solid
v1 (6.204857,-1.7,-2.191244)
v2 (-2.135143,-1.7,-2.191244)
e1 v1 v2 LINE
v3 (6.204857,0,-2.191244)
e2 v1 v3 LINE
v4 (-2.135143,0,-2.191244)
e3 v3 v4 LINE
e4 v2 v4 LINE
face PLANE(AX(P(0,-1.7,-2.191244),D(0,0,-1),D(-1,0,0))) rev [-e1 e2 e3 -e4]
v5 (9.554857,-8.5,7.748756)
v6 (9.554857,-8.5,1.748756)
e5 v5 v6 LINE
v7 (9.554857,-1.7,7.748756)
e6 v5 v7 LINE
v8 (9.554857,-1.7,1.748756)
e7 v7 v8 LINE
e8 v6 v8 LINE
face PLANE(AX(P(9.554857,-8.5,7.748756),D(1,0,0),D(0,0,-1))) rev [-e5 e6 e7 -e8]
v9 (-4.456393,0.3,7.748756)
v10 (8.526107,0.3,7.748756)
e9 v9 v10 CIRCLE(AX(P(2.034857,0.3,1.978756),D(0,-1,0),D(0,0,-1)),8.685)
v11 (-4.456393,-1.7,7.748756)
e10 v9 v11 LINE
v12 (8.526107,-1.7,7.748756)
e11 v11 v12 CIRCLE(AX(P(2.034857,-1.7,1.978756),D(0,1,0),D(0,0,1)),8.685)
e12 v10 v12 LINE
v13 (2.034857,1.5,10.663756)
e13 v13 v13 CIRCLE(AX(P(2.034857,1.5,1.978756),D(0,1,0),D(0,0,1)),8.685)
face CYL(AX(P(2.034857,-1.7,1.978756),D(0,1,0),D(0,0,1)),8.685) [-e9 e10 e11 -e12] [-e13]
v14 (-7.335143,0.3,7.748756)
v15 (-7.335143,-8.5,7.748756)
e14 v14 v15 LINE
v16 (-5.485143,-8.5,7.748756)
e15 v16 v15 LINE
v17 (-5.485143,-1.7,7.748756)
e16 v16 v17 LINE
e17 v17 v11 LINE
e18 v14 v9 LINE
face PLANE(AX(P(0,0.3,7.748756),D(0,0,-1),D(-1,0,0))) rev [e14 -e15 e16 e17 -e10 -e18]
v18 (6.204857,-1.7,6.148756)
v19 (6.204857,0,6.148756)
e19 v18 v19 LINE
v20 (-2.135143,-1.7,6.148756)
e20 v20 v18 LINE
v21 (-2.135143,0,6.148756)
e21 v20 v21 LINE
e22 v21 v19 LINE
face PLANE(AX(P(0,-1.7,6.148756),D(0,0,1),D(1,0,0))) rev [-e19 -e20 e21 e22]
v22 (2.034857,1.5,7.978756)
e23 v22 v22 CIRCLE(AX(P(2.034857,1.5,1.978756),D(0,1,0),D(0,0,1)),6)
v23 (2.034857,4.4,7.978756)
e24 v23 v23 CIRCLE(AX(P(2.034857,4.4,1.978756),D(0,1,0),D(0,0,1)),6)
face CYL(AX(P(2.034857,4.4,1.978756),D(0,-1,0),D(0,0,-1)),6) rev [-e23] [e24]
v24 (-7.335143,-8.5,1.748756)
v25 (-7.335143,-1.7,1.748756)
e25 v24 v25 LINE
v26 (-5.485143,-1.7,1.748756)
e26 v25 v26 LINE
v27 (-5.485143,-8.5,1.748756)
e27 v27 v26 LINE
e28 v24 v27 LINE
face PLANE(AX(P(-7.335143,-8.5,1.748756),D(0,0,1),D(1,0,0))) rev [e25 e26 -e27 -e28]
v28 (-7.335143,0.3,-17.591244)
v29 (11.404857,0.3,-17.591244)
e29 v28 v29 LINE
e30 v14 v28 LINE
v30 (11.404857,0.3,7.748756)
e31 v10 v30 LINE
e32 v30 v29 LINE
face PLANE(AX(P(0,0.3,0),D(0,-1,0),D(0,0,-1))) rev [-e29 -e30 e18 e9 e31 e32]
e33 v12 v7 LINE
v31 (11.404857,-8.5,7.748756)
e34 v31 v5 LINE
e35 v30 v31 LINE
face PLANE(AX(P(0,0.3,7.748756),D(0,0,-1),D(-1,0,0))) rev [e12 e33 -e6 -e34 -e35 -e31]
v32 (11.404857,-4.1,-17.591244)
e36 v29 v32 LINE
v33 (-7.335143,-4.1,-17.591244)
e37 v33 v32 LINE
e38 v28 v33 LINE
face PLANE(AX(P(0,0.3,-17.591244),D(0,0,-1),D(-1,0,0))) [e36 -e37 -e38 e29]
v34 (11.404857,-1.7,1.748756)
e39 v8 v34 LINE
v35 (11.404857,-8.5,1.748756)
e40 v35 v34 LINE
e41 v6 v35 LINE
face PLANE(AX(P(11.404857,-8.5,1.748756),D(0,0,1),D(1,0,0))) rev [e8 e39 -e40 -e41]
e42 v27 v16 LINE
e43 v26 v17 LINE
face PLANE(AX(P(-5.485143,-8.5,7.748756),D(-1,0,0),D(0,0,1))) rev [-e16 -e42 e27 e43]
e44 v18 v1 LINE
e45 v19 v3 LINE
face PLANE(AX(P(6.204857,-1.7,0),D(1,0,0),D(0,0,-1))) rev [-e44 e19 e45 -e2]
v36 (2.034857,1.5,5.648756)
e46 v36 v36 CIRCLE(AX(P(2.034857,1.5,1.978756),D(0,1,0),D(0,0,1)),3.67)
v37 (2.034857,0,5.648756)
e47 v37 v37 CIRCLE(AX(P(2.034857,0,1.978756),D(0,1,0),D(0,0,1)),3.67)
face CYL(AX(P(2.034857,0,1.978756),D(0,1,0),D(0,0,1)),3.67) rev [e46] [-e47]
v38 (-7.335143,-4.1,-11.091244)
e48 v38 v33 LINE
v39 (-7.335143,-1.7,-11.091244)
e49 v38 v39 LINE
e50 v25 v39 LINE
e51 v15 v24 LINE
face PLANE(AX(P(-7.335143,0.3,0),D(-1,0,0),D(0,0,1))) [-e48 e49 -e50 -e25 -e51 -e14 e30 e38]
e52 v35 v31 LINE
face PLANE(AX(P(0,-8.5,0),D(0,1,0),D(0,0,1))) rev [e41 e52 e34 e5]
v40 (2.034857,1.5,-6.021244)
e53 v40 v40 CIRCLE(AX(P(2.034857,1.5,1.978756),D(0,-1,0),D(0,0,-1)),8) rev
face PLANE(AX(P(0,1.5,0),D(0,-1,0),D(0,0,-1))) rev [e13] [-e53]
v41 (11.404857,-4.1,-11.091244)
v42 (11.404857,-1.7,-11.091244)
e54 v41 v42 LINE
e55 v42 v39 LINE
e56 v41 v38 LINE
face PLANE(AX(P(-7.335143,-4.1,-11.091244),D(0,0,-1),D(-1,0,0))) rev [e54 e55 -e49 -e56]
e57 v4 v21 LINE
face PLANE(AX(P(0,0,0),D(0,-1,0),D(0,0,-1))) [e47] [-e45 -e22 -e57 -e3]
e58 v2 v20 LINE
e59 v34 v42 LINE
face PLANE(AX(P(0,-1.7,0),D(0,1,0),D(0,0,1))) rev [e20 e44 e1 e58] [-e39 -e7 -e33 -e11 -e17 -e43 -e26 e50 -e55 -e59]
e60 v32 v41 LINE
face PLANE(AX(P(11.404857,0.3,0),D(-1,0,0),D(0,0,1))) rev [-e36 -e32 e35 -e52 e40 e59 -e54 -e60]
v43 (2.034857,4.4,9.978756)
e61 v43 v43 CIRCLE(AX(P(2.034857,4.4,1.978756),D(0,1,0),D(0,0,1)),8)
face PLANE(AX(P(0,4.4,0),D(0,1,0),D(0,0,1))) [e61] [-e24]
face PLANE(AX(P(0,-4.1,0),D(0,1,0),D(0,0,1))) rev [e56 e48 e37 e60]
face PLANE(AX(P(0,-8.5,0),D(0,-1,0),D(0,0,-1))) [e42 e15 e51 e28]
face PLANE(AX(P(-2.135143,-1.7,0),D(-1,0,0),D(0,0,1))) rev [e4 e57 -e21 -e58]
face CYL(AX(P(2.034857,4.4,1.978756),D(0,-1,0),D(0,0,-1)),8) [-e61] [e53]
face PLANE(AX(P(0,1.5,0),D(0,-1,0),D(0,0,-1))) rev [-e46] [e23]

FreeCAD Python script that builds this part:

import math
import FreeCAD as App
import Part
import Sketcher

V = App.Vector
Q = App.Units.Quantity

doc = App.newDocument("Part")
body = doc.addObject("PartDesign::Body", "Body")

# Sketch on XZ plane
sketch1 = body.newObject("Sketcher::SketchObject", "Sketch")
sketch1.AttachmentSupport = (doc.getObject("XZ_Plane"), [""])
sketch1.MapMode = "FlatFace"
sketch1.addGeometry([
    Part.LineSegment(V(-2, -2, 0), V(-2, 6, 0)),
    Part.LineSegment(V(-2, 6, 0), V(6, 6, 0)),
    Part.LineSegment(V(6, 6, 0), V(6, -2, 0)),
    Part.LineSegment(V(6, -2, 0), V(-2, -2, 0)),
], False)
sketch1.addConstraint([
    Sketcher.Constraint("Coincident", 0, 2, 1, 1),
    Sketcher.Constraint("Coincident", 1, 2, 2, 1),
    Sketcher.Constraint("Coincident", 2, 2, 3, 1),
    Sketcher.Constraint("Coincident", 3, 2, 0, 1),
    Sketcher.Constraint("Vertical", 0),
    Sketcher.Constraint("Horizontal", 1),
    Sketcher.Constraint("Vertical", 2),
    Sketcher.Constraint("Horizontal", 3),
    Sketcher.Constraint("Equal", 3, 0),
    Sketcher.Constraint("DistanceX", 1, 1, 1, 2, Q("8.34 mm")),
    Sketcher.Constraint("DistanceX", 0, 2, -1, 1, Q("2.135143 mm")),
    Sketcher.Constraint("DistanceY", -1, 1, 0, 2, Q("6.148756 mm")),
])
pad1 = body.newObject("PartDesign::Pad", "Pad")
pad1.Profile = sketch1
pad1.Length = 1.5
pad1.Reversed = True

# Sketch on XZ plane
sketch2 = body.newObject("Sketcher::SketchObject", "Sketch001")
sketch2.AttachmentSupport = (doc.getObject("XZ_Plane"), [""])
sketch2.MapMode = "FlatFace"
sketch2.AttachmentOffset = App.Placement(V(0, 0, -1.5), App.Rotation())
sketch2.addGeometry([
    Part.ArcOfCircle(Part.Circle(V(2, 2, 0), V(0, 0, 1), 3.7), math.radians(-90), math.radians(0)),
    Part.ArcOfCircle(Part.Circle(V(2, 2, 0), V(0, 0, 1), 3.7), math.radians(90), math.radians(270)),
    Part.ArcOfCircle(Part.Circle(V(2, 2, 0), V(0, 0, 1), 3.7), math.radians(0), math.radians(90)),
], False)
sketch2.addConstraint([
    Sketcher.Constraint("Tangent", 0, 1, 1, 2),
    Sketcher.Constraint("Tangent", 1, 1, 2, 2),
    Sketcher.Constraint("Tangent", 2, 1, 0, 2),
    Sketcher.Constraint("Horizontal", 1, 3, 2, 1),
    Sketcher.Constraint("Vertical", 2, 3, 0, 1),
    Sketcher.Constraint("Vertical", 0, 1, 1, 1),
    Sketcher.Constraint("Radius", 0, Q("3.67 mm")),
    Sketcher.Constraint("DistanceX", -1, 1, 0, 3, Q("2.034857 mm")),
    Sketcher.Constraint("DistanceY", -1, 1, 0, 3, Q("1.978756 mm")),
])
pocket1 = body.newObject("PartDesign::Pocket", "Pocket")
pocket1.Profile = sketch2
pocket1.Length = 1.5
pocket1.Reversed = True

# Sketch on XZ plane
sketch3 = body.newObject("Sketcher::SketchObject", "Sketch002")
sketch3.AttachmentSupport = (doc.getObject("XZ_Plane"), [""])
sketch3.MapMode = "FlatFace"
sketch3.AttachmentOffset = App.Placement(V(0, 0, -1.5), App.Rotation())
sketch3.addGeometry([
    Part.LineSegment(V(-4, 8, 0), V(8, 8, 0)),  # 0
    Part.LineSegment(V(8, 8, 0), V(8, -4, 0)),  # 1
    Part.LineSegment(V(8, -4, 0), V(-4, -4, 0)),  # 2
    Part.LineSegment(V(-4, -4, 0), V(-4, 8, 0)),  # 3
    Part.LineSegment(V(-2, 6, 0), V(-2, -2, 0)),  # 4
    Part.LineSegment(V(-2, -2, 0), V(6, -2, 0)),  # 5
    Part.LineSegment(V(6, -2, 0), V(6, 6, 0)),  # 6
    Part.LineSegment(V(6, 6, 0), V(-2, 6, 0)),  # 7
], False)
sketch3.addConstraint([
    Sketcher.Constraint("Coincident", 0, 2, 1, 1),
    Sketcher.Constraint("Coincident", 1, 2, 2, 1),
    Sketcher.Constraint("Coincident", 2, 2, 3, 1),
    Sketcher.Constraint("Coincident", 3, 2, 0, 1),
    Sketcher.Constraint("Coincident", 4, 2, 5, 1),
    Sketcher.Constraint("Coincident", 5, 2, 6, 1),
    Sketcher.Constraint("Coincident", 6, 2, 7, 1),
    Sketcher.Constraint("Coincident", 7, 2, 4, 1),
    Sketcher.Constraint("Horizontal", 0),
    Sketcher.Constraint("Vertical", 1),
    Sketcher.Constraint("Horizontal", 2),
    Sketcher.Constraint("Vertical", 3),
    Sketcher.Constraint("Vertical", 4),
    Sketcher.Constraint("Horizontal", 5),
    Sketcher.Constraint("Vertical", 6),
    Sketcher.Constraint("Horizontal", 7),
    Sketcher.Constraint("Equal", 2, 1),
    Sketcher.Constraint("Equal", 7, 4),
    Sketcher.Constraint("DistanceX", 0, 1, 0, 2, Q("11.34 mm")),
    Sketcher.Constraint("DistanceX", 5, 1, 5, 2, Q("8.34 mm")),
    Sketcher.Constraint("DistanceX", 2, 2, 4, 2, Q("1.5 mm")),
    Sketcher.Constraint("DistanceY", 2, 2, 4, 2, Q("1.5 mm")),
    Sketcher.Constraint("DistanceX", -1, 1, 0, 2, Q("7.704857 mm")),
    Sketcher.Constraint("DistanceY", -1, 1, 0, 2, Q("7.648756 mm")),
])
pad2 = body.newObject("PartDesign::Pad", "Pad001")
pad2.Profile = sketch3
pad2.Length = 3.2

# Sketch on XZ plane
sketch4 = body.newObject("Sketcher::SketchObject", "Sketch003")
sketch4.AttachmentSupport = (doc.getObject("XZ_Plane"), [""])
sketch4.MapMode = "FlatFace"
sketch4.AttachmentOffset = App.Placement(V(0, 0, -1.5), App.Rotation())
sketch4.addGeometry([
    Part.Circle(V(2, 2, 0), V(0, 0, 1), 9),  # 0
    Part.LineSegment(V(8, 8, 0), V(-4, 8, 0)),  # 1
    Part.LineSegment(V(-4, 8, 0), V(-4, -4, 0)),  # 2
    Part.LineSegment(V(-4, -4, 0), V(8, -4, 0)),  # 3
    Part.LineSegment(V(8, -4, 0), V(8, 8, 0)),  # 4
], False)
sketch4.addConstraint([
    Sketcher.Constraint("Coincident", 1, 2, 2, 1),
    Sketcher.Constraint("Coincident", 2, 2, 3, 1),
    Sketcher.Constraint("Coincident", 3, 2, 4, 1),
    Sketcher.Constraint("Coincident", 4, 2, 1, 1),
    Sketcher.Constraint("Horizontal", 1),
    Sketcher.Constraint("Vertical", 2),
    Sketcher.Constraint("Horizontal", 3),
    Sketcher.Constraint("Vertical", 4),
    Sketcher.Constraint("Equal", 3, 2),
    Sketcher.Constraint("Diameter", 0, Q("17.37 mm")),
    Sketcher.Constraint("DistanceX", 1, 2, 1, 1, Q("11.34 mm")),
    Sketcher.Constraint("DistanceX", 1, 2, 0, 3, Q("5.67 mm")),
    Sketcher.Constraint("DistanceY", 0, 3, 1, 2, Q("5.67 mm")),
    Sketcher.Constraint("DistanceX", -1, 1, 0, 3, Q("2.034857 mm")),
    Sketcher.Constraint("DistanceY", -1, 1, 0, 3, Q("1.978756 mm")),
])
pad3 = body.newObject("PartDesign::Pad", "Pad002")
pad3.Profile = sketch4
pad3.Length = 3.2

# Sketch on XZ plane
sketch5 = body.newObject("Sketcher::SketchObject", "Sketch004")
sketch5.AttachmentSupport = (doc.getObject("XZ_Plane"), [""])
sketch5.MapMode = "FlatFace"
sketch5.AttachmentOffset = App.Placement(V(0, 0, -1.5), App.Rotation())
sketch5.addGeometry([
    Part.Circle(V(2, 2, 0), V(0, 0, 1), 8),
    Part.Circle(V(2, 2, 0), V(0, 0, 1), 6),
], False)
sketch5.addConstraint([
    Sketcher.Constraint("Coincident", 1, 3, 0, 3),
    Sketcher.Constraint("Diameter", 0, Q("16 mm")),
    Sketcher.Constraint("Diameter", 1, Q("12 mm")),
    Sketcher.Constraint("DistanceX", -1, 1, 0, 3, Q("2.034857 mm")),
    Sketcher.Constraint("DistanceY", -1, 1, 0, 3, Q("1.978756 mm")),
])
pad4 = body.newObject("PartDesign::Pad", "Pad003")
pad4.Profile = sketch5
pad4.Length = 2.9
pad4.Reversed = True

# Sketch on XZ plane
sketch6 = body.newObject("Sketcher::SketchObject", "Sketch005")
sketch6.AttachmentSupport = (doc.getObject("XZ_Plane"), [""])
sketch6.MapMode = "FlatFace"
sketch6.AttachmentOffset = App.Placement(V(0, 0, -0.3), App.Rotation())
sketch6.addGeometry([
    Part.ArcOfCircle(Part.Circle(V(2, 2, 0), V(0, 0, 1), 8.7), math.radians(151), math.radians(299)),  # 0
    Part.ArcOfCircle(Part.Circle(V(2, 2, 0), V(0, 0, 1), 8.7), math.radians(138.37), math.radians(151.31)),  # 1
    Part.LineSegment(V(-4.5, 7.7, 0), V(-7.3, 7.7, 0)),  # 2
    Part.LineSegment(V(-7.3, 7.7, 0), V(-7.3, -17.6, 0)),  # 3
    Part.LineSegment(V(-7.3, -17.6, 0), V(11.4, -17.6, 0)),  # 4
    Part.LineSegment(V(11.4, -17.6, 0), V(11.4, 7.7, 0)),  # 5
    Part.LineSegment(V(11.4, 7.7, 0), V(8.5, 7.7, 0)),  # 6
    Part.ArcOfCircle(Part.Circle(V(2, 2, 0), V(0, 0, 1), 8.7), math.radians(28.69), math.radians(41.63)),  # 7
    Part.ArcOfCircle(Part.Circle(V(2, 2, 0), V(0, 0, 1), 8.7), math.radians(0), math.radians(29)),  # 8
    Part.ArcOfCircle(Part.Circle(V(2, 2, 0), V(0, 0, 1), 8.7), math.radians(-61), math.radians(0)),  # 9
], False)
sketch6.addConstraint([
    Sketcher.Constraint("Tangent", 0, 1, 1, 2),
    Sketcher.Constraint("Coincident", 1, 1, 2, 1),
    Sketcher.Constraint("Coincident", 2, 2, 3, 1),
    Sketcher.Constraint("Coincident", 3, 2, 4, 1),
    Sketcher.Constraint("Coincident", 4, 2, 5, 1),
    Sketcher.Constraint("Coincident", 5, 2, 6, 1),
    Sketcher.Constraint("Coincident", 6, 2, 7, 2),
    Sketcher.Constraint("Tangent", 7, 1, 8, 2),
    Sketcher.Constraint("Tangent", 8, 1, 9, 2),
    Sketcher.Constraint("Tangent", 9, 1, 0, 2),
    Sketcher.Constraint("Horizontal", 2),
    Sketcher.Constraint("Vertical", 3),
    Sketcher.Constraint("Horizontal", 4),
    Sketcher.Constraint("Vertical", 5),
    Sketcher.Constraint("Horizontal", 6),
    Sketcher.Constraint("Coincident", 7, 3, 0, 3),
    Sketcher.Constraint("Equal", 0, 1),
    Sketcher.Constraint("Equal", 1, 7),
    Sketcher.Constraint("Horizontal", 2, 2, 5, 2),
    Sketcher.Constraint("Horizontal", 0, 1, 7, 1),
    Sketcher.Constraint("Horizontal", 9, 3, 8, 1),
    Sketcher.Constraint("Equal", 2, 6),
    Sketcher.Constraint("Radius", 0, Q("8.685 mm")),
    Sketcher.Constraint("DistanceX", 4, 1, 4, 2, Q("18.74 mm")),
    Sketcher.Constraint("DistanceY", 3, 2, 3, 1, Q("25.34 mm")),
    Sketcher.Constraint("DistanceY", 0, 1, 1, 1, Q("1.6 mm")),
    Sketcher.Constraint("DistanceY", 8, 3, 0, 1, Q("4.17 mm")),
    Sketcher.Constraint("DistanceX", 1, 3, 9, 1, Q("4.17 mm")),
    Sketcher.Constraint("DistanceX", -1, 1, 0, 3, Q("2.034857 mm")),
    Sketcher.Constraint("DistanceY", -1, 1, 0, 3, Q("1.978756 mm")),
])
pad5 = body.newObject("PartDesign::Pad", "Pad004")
pad5.Profile = sketch6
pad5.Length = 2

# Sketch on XZ plane
sketch7 = body.newObject("Sketcher::SketchObject", "Sketch006")
sketch7.AttachmentSupport = (doc.getObject("XZ_Plane"), [""])
sketch7.MapMode = "FlatFace"
sketch7.AttachmentOffset = App.Placement(V(0, 0, 1.7), App.Rotation())
sketch7.addGeometry([
    Part.LineSegment(V(-7, -11, 0), V(-7, -18, 0)),
    Part.LineSegment(V(-7, -18, 0), V(11, -18, 0)),
    Part.LineSegment(V(11, -18, 0), V(11, -11, 0)),
    Part.LineSegment(V(11, -11, 0), V(-7, -11, 0)),
], False)
sketch7.addConstraint([
    Sketcher.Constraint("Coincident", 0, 2, 1, 1),
    Sketcher.Constraint("Coincident", 1, 2, 2, 1),
    Sketcher.Constraint("Coincident", 2, 2, 3, 1),
    Sketcher.Constraint("Coincident", 3, 2, 0, 1),
    Sketcher.Constraint("Vertical", 0),
    Sketcher.Constraint("Horizontal", 1),
    Sketcher.Constraint("Vertical", 2),
    Sketcher.Constraint("Horizontal", 3),
    Sketcher.Constraint("DistanceY", 0, 2, 0, 1, Q("6.5 mm")),
    Sketcher.Constraint("DistanceX", 1, 1, 1, 2, Q("18.74 mm")),
    Sketcher.Constraint("DistanceX", 0, 2, -1, 1, Q("7.335143 mm")),
    Sketcher.Constraint("DistanceY", 0, 2, -1, 1, Q("17.591244 mm")),
])
pad6 = body.newObject("PartDesign::Pad", "Pad005")
pad6.Profile = sketch7
pad6.Length = 2.4

# Sketch on XZ plane
sketch8 = body.newObject("Sketcher::SketchObject", "Sketch007")
sketch8.AttachmentSupport = (doc.getObject("XZ_Plane"), [""])
sketch8.MapMode = "FlatFace"
sketch8.AttachmentOffset = App.Placement(V(0, 0, 1.7), App.Rotation())
sketch8.addGeometry([
    Part.LineSegment(V(-7.3, 7.7, 0), V(-7.3, 1.7, 0)),  # 0
    Part.LineSegment(V(-7.3, 1.7, 0), V(-5.5, 1.7, 0)),  # 1
    Part.LineSegment(V(-5.5, 1.7, 0), V(-5.5, 7.7, 0)),  # 2
    Part.LineSegment(V(-5.5, 7.7, 0), V(-7.3, 7.7, 0)),  # 3
    Part.LineSegment(V(9.6, 7.7, 0), V(9.6, 1.7, 0)),  # 4
    Part.LineSegment(V(9.6, 1.7, 0), V(11.4, 1.7, 0)),  # 5
    Part.LineSegment(V(11.4, 1.7, 0), V(11.4, 7.7, 0)),  # 6
    Part.LineSegment(V(11.4, 7.7, 0), V(9.6, 7.7, 0)),  # 7
], False)
sketch8.addConstraint([
    Sketcher.Constraint("Coincident", 0, 2, 1, 1),
    Sketcher.Constraint("Coincident", 1, 2, 2, 1),
    Sketcher.Constraint("Coincident", 2, 2, 3, 1),
    Sketcher.Constraint("Coincident", 3, 2, 0, 1),
    Sketcher.Constraint("Coincident", 4, 2, 5, 1),
    Sketcher.Constraint("Coincident", 5, 2, 6, 1),
    Sketcher.Constraint("Coincident", 6, 2, 7, 1),
    Sketcher.Constraint("Coincident", 7, 2, 4, 1),
    Sketcher.Constraint("Vertical", 0),
    Sketcher.Constraint("Horizontal", 1),
    Sketcher.Constraint("Vertical", 2),
    Sketcher.Constraint("Horizontal", 3),
    Sketcher.Constraint("Vertical", 4),
    Sketcher.Constraint("Horizontal", 5),
    Sketcher.Constraint("Vertical", 6),
    Sketcher.Constraint("Horizontal", 7),
    Sketcher.Constraint("Horizontal", 1, 2, 4, 2),
    Sketcher.Constraint("Horizontal", 3, 2, 6, 2),
    Sketcher.Constraint("Equal", 3, 5),
    Sketcher.Constraint("DistanceY", 0, 2, 0, 1, Q("6 mm")),
    Sketcher.Constraint("DistanceX", 1, 1, 1, 2, Q("1.85 mm")),
    Sketcher.Constraint("DistanceX", 1, 2, 4, 2, Q("15.04 mm")),
    Sketcher.Constraint("DistanceX", 0, 2, -1, 1, Q("7.335143 mm")),
    Sketcher.Constraint("DistanceY", -1, 1, 0, 2, Q("1.748756 mm")),
])
pad7 = body.newObject("PartDesign::Pad", "Pad006")
pad7.Profile = sketch8
pad7.Length = 6.8

doc.recompute()
